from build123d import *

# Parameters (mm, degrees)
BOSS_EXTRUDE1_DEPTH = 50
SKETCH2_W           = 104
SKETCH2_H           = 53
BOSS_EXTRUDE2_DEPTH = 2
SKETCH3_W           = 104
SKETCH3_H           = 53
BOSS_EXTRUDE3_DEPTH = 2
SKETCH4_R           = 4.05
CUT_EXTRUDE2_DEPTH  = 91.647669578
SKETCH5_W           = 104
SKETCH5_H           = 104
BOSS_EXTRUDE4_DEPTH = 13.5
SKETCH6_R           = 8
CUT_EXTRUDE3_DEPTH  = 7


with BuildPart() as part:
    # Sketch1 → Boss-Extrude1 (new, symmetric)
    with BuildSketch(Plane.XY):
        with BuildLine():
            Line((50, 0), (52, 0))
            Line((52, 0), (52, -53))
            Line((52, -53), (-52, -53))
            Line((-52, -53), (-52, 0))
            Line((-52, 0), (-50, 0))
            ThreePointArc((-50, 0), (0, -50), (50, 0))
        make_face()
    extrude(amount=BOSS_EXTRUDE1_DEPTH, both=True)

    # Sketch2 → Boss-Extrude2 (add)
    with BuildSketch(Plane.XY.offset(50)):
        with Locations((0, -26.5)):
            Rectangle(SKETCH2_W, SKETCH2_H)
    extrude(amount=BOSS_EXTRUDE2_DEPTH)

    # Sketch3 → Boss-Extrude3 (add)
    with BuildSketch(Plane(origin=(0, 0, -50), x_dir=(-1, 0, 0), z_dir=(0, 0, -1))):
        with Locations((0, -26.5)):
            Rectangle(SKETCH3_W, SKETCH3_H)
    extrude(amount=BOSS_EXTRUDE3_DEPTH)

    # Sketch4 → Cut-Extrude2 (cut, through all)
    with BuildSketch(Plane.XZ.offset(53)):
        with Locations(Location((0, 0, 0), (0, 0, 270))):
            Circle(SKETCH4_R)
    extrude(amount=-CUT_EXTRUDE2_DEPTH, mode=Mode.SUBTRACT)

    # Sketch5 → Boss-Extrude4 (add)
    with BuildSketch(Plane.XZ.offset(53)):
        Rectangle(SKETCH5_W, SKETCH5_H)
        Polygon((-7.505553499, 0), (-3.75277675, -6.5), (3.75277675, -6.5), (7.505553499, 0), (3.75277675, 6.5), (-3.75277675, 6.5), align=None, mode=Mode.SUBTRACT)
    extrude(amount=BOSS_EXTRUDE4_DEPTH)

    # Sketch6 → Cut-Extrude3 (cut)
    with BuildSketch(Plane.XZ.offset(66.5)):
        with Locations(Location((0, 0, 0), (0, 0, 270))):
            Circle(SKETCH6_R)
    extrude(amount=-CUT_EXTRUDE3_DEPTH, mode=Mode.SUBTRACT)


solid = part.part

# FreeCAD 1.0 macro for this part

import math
import FreeCAD as App
import Part
import Sketcher

V = App.Vector
Q = App.Units.Quantity


def add_polygon(sketch, points):
    """Adds a closed chain of lines whose ends are joined by coincident constraints."""
    first, n = sketch.GeometryCount, len(points)
    for a, b in zip(points, points[1:] + points[:1]):
        sketch.addGeometry(Part.LineSegment(App.Vector(*a, 0), App.Vector(*b, 0)), False)
    for i in range(n):
        sketch.addConstraint(Sketcher.Constraint("Coincident", first + i, 2, first + (i + 1) % n, 1))

doc = App.newDocument("Part")
body = doc.addObject("PartDesign::Body", "Body")

sketch1 = body.newObject("Sketcher::SketchObject", "Sketch")
sketch1.AttachmentSupport = (doc.getObject("XY_Plane"), [""])
sketch1.MapMode = "FlatFace"
sketch1.addGeometry(Part.LineSegment(V(52, 0, 0), V(50, 0, 0)), False)
sketch1.addGeometry(Part.ArcOfCircle(Part.Circle(V(0, 0, 0), V(0, 0, 1), 50), math.radians(180), math.radians(360)), False)
sketch1.addGeometry(Part.LineSegment(V(-50, 0, 0), V(-52, 0, 0)), False)
sketch1.addGeometry(Part.LineSegment(V(-52, 0, 0), V(-52, -53, 0)), False)
sketch1.addGeometry(Part.LineSegment(V(-52, -53, 0), V(52, -53, 0)), False)
sketch1.addGeometry(Part.LineSegment(V(52, -53, 0), V(52, 0, 0)), False)
sketch1.addConstraint(Sketcher.Constraint("Coincident", 0, 2, 1, 2))
sketch1.addConstraint(Sketcher.Constraint("Coincident", 1, 1, 2, 1))
sketch1.addConstraint(Sketcher.Constraint("Coincident", 2, 2, 3, 1))
sketch1.addConstraint(Sketcher.Constraint("Coincident", 3, 2, 4, 1))
sketch1.addConstraint(Sketcher.Constraint("Coincident", 4, 2, 5, 1))
sketch1.addConstraint(Sketcher.Constraint("Coincident", 5, 2, 0, 1))
sketch1.addConstraint(Sketcher.Constraint("Horizontal", 0))
sketch1.addConstraint(Sketcher.Constraint("Horizontal", 2))
sketch1.addConstraint(Sketcher.Constraint("Vertical", 3))
sketch1.addConstraint(Sketcher.Constraint("Horizontal", 4))
sketch1.addConstraint(Sketcher.Constraint("Vertical", 5))
sketch1.addConstraint(Sketcher.Constraint("Coincident", 1, 3, -1, 1))
sketch1.addConstraint(Sketcher.Constraint("Symmetric", 2, 2, 5, 2, -1, 1))
sketch1.addConstraint(Sketcher.Constraint("PointOnObject", 0, 2, -1))
sketch1.addConstraint(Sketcher.Constraint("Radius", 1, 50.0))
sketch1.addConstraint(Sketcher.Constraint("DistanceX", 0, 2, 0, 1, 2.0))
sketch1.addConstraint(Sketcher.Constraint("DistanceY", 3, 2, 3, 1, 53.0))
pad1 = body.newObject("PartDesign::Pad", "Pad")
pad1.Profile = sketch1
pad1.Length = 100
pad1.Midplane = True

sketch2 = body.newObject("Sketcher::SketchObject", "Sketch001")
sketch2.AttachmentSupport = (doc.getObject("XY_Plane"), [""])
sketch2.MapMode = "FlatFace"
sketch2.AttachmentOffset = App.Placement(V(0, 0, 50), App.Rotation())
add_polygon(sketch2, [(-52, 0), (-52, -53), (52, -53), (52, 0)])
sketch2.addConstraint(Sketcher.Constraint("Vertical", 0))
sketch2.addConstraint(Sketcher.Constraint("Horizontal", 1))
sketch2.addConstraint(Sketcher.Constraint("Vertical", 2))
sketch2.addConstraint(Sketcher.Constraint("Horizontal", 3))
sketch2.addConstraint(Sketcher.Constraint("Symmetric", 2, 2, 3, 2, -1, 1))
sketch2.addConstraint(Sketcher.Constraint("DistanceX", 1, 1, 1, 2, 104.0))
sketch2.addConstraint(Sketcher.Constraint("DistanceY", 0, 2, 0, 1, 53.0))
pad2 = body.newObject("PartDesign::Pad", "Pad001")
pad2.Profile = sketch2
pad2.Length = 2

sketch3 = body.newObject("Sketcher::SketchObject", "Sketch002")
sketch3.AttachmentSupport = (doc.getObject("XY_Plane"), [""])
sketch3.MapMode = "FlatFace"
sketch3.AttachmentOffset = App.Placement(V(0, 0, -50), App.Rotation())
add_polygon(sketch3, [(52, 0), (52, -53), (-52, -53), (-52, 0)])
sketch3.addConstraint(Sketcher.Constraint("Vertical", 0))
sketch3.addConstraint(Sketcher.Constraint("Horizontal", 1))
sketch3.addConstraint(Sketcher.Constraint("Vertical", 2))
sketch3.addConstraint(Sketcher.Constraint("Horizontal", 3))
sketch3.addConstraint(Sketcher.Constraint("Symmetric", 2, 2, 3, 2, -1, 1))
sketch3.addConstraint(Sketcher.Constraint("DistanceX", 1, 2, 1, 1, 104.0))
sketch3.addConstraint(Sketcher.Constraint("DistanceY", 0, 2, 0, 1, 53.0))
pad3 = body.newObject("PartDesign::Pad", "Pad002")
pad3.Profile = sketch3
pad3.Length = 2
pad3.Reversed = True

sketch4 = body.newObject("Sketcher::SketchObject", "Sketch003")
sketch4.AttachmentSupport = (doc.getObject("XZ_Plane"), [""])
sketch4.MapMode = "FlatFace"
sketch4.AttachmentOffset = App.Placement(V(0, 0, 53), App.Rotation())
sketch4.addGeometry(Part.Circle(V(0, 0, 0), V(0, 0, 1), 4.05), False)
sketch4.addConstraint(Sketcher.Constraint("Coincident", 0, 3, -1, 1))
sketch4.addConstraint(Sketcher.Constraint("Diameter", 0, 8.1))
pocket1 = body.newObject("PartDesign::Pocket", "Pocket")
pocket1.Profile = sketch4
pocket1.Type = "ThroughAll"

sketch5 = body.newObject("Sketcher::SketchObject", "Sketch004")
sketch5.AttachmentSupport = (doc.getObject("XZ_Plane"), [""])
sketch5.MapMode = "FlatFace"
sketch5.AttachmentOffset = App.Placement(V(0, 0, 53), App.Rotation())
add_polygon(sketch5, [(-52, 52), (-52, -52), (52, -52), (52, 52)])
add_polygon(sketch5, [(-3.752777, -6.5), (-7.505553, 0), (-3.752777, 6.5), (3.752777, 6.5), (7.505553, 0), (3.752777, -6.5)])
sketch5.addConstraint(Sketcher.Constraint("Vertical", 0))
sketch5.addConstraint(Sketcher.Constraint("Horizontal", 1))
sketch5.addConstraint(Sketcher.Constraint("Vertical", 2))
sketch5.addConstraint(Sketcher.Constraint("Horizontal", 3))
sketch5.addConstraint(Sketcher.Constraint("Horizontal", 6))
sketch5.addConstraint(Sketcher.Constraint("Horizontal", 9))
sketch5.addConstraint(Sketcher.Constraint("Symmetric", 0, 2, 2, 2, -1, 1))
sketch5.addConstraint(Sketcher.Constraint("Symmetric", 4, 2, 7, 2, -1, 1))
sketch5.addConstraint(Sketcher.Constraint("Symmetric", 5, 2, 8, 2, -1, 1))
sketch5.addConstraint(Sketcher.Constraint("PointOnObject", 4, 2, -1))
sketch5.addConstraint(Sketcher.Constraint("Parallel", 4, 7))
sketch5.addConstraint(Sketcher.Constraint("Vertical", 6, 2, 8, 2))
sketch5.addConstraint(Sketcher.Constraint("Equal", 3, 0))
sketch5.addConstraint(Sketcher.Constraint("DistanceX", 1, 1, 1, 2, 104.0))
sketch5.addConstraint(Sketcher.Constraint("Angle", 4, Q("120 deg")))
sketch5.addConstraint(Sketcher.Constraint("DistanceY", 8, 2, 6, 2, 13.0))
sketch5.addConstraint(Sketcher.Constraint("DistanceX", 6, 1, 6, 2, 7.505554))
pad4 = body.newObject("PartDesign::Pad", "Pad003")
pad4.Profile = sketch5
pad4.Length = 13.5

sketch6 = body.newObject("Sketcher::SketchObject", "Sketch005")
sketch6.AttachmentSupport = (doc.getObject("XZ_Plane"), [""])
sketch6.MapMode = "FlatFace"
sketch6.AttachmentOffset = App.Placement(V(0, 0, 66.5), App.Rotation())
sketch6.addGeometry(Part.Circle(V(0, 0, 0), V(0, 0, 1), 8), False)
sketch6.addConstraint(Sketcher.Constraint("Coincident", 0, 3, -1, 1))
sketch6.addConstraint(Sketcher.Constraint("Diameter", 0, 16.0))
pocket2 = body.newObject("PartDesign::Pocket", "Pocket001")
pocket2.Profile = sketch6
pocket2.Length = 7

doc.recompute()
